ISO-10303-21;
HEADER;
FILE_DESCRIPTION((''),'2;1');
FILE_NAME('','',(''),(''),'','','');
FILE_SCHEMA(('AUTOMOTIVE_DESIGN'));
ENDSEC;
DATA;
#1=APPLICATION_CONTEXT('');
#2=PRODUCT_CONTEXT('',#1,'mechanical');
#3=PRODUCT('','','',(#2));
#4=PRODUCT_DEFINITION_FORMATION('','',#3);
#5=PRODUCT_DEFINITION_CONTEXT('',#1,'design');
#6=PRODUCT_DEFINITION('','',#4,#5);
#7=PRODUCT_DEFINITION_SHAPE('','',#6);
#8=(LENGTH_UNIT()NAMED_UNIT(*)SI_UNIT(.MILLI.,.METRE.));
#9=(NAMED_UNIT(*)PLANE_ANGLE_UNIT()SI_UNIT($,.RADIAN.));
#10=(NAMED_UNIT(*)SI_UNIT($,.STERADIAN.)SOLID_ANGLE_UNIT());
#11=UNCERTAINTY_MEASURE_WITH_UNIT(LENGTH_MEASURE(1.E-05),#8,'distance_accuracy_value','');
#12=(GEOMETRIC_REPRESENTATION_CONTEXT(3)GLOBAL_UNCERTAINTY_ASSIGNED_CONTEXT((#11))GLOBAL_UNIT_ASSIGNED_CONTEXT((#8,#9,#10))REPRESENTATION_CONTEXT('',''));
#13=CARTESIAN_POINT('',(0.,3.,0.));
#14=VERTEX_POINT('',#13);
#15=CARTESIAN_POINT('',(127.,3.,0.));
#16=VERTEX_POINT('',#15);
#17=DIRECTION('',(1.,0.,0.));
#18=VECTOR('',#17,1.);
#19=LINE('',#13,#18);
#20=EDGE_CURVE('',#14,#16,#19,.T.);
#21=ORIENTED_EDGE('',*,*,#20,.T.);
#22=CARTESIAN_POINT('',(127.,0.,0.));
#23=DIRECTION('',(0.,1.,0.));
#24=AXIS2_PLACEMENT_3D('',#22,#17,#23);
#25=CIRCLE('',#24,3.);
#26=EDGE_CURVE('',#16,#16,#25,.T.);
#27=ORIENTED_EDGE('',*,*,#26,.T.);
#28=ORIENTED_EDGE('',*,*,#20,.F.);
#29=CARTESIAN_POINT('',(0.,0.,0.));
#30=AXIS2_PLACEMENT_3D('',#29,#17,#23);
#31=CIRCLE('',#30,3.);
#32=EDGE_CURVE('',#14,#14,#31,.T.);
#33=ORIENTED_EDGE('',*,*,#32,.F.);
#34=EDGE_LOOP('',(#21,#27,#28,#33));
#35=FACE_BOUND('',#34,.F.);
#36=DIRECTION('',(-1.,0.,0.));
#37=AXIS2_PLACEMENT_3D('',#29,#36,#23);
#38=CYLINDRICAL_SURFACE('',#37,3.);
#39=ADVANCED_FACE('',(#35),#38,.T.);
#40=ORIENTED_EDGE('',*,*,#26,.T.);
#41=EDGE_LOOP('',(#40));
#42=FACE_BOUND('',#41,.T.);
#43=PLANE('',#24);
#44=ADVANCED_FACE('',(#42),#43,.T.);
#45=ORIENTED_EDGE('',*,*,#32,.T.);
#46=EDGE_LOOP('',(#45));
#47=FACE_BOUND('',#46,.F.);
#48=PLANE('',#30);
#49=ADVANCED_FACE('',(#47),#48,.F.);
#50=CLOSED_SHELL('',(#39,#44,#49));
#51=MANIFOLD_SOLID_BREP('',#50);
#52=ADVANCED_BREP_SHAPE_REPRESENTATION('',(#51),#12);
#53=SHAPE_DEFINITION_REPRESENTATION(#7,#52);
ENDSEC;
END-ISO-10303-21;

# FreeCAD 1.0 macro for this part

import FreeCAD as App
import Part
import Sketcher

V = App.Vector
Q = App.Units.Quantity

doc = App.newDocument("Part")
body = doc.addObject("PartDesign::Body", "Body")

sketch1 = body.newObject("Sketcher::SketchObject", "Sketch")
sketch1.AttachmentSupport = (doc.getObject("YZ_Plane"), [""])
sketch1.MapMode = "FlatFace"
sketch1.addGeometry(Part.Circle(V(0, 0, 0), V(0, 0, 1), 3), False)
sketch1.addConstraint([
    Sketcher.Constraint("Coincident", 0, 3, -1, 1),
    Sketcher.Constraint("Diameter", 0, Q("6 mm")),
])
pad1 = body.newObject("PartDesign::Pad", "Pad")
pad1.Profile = sketch1
pad1.Length = 127

doc.recompute()
